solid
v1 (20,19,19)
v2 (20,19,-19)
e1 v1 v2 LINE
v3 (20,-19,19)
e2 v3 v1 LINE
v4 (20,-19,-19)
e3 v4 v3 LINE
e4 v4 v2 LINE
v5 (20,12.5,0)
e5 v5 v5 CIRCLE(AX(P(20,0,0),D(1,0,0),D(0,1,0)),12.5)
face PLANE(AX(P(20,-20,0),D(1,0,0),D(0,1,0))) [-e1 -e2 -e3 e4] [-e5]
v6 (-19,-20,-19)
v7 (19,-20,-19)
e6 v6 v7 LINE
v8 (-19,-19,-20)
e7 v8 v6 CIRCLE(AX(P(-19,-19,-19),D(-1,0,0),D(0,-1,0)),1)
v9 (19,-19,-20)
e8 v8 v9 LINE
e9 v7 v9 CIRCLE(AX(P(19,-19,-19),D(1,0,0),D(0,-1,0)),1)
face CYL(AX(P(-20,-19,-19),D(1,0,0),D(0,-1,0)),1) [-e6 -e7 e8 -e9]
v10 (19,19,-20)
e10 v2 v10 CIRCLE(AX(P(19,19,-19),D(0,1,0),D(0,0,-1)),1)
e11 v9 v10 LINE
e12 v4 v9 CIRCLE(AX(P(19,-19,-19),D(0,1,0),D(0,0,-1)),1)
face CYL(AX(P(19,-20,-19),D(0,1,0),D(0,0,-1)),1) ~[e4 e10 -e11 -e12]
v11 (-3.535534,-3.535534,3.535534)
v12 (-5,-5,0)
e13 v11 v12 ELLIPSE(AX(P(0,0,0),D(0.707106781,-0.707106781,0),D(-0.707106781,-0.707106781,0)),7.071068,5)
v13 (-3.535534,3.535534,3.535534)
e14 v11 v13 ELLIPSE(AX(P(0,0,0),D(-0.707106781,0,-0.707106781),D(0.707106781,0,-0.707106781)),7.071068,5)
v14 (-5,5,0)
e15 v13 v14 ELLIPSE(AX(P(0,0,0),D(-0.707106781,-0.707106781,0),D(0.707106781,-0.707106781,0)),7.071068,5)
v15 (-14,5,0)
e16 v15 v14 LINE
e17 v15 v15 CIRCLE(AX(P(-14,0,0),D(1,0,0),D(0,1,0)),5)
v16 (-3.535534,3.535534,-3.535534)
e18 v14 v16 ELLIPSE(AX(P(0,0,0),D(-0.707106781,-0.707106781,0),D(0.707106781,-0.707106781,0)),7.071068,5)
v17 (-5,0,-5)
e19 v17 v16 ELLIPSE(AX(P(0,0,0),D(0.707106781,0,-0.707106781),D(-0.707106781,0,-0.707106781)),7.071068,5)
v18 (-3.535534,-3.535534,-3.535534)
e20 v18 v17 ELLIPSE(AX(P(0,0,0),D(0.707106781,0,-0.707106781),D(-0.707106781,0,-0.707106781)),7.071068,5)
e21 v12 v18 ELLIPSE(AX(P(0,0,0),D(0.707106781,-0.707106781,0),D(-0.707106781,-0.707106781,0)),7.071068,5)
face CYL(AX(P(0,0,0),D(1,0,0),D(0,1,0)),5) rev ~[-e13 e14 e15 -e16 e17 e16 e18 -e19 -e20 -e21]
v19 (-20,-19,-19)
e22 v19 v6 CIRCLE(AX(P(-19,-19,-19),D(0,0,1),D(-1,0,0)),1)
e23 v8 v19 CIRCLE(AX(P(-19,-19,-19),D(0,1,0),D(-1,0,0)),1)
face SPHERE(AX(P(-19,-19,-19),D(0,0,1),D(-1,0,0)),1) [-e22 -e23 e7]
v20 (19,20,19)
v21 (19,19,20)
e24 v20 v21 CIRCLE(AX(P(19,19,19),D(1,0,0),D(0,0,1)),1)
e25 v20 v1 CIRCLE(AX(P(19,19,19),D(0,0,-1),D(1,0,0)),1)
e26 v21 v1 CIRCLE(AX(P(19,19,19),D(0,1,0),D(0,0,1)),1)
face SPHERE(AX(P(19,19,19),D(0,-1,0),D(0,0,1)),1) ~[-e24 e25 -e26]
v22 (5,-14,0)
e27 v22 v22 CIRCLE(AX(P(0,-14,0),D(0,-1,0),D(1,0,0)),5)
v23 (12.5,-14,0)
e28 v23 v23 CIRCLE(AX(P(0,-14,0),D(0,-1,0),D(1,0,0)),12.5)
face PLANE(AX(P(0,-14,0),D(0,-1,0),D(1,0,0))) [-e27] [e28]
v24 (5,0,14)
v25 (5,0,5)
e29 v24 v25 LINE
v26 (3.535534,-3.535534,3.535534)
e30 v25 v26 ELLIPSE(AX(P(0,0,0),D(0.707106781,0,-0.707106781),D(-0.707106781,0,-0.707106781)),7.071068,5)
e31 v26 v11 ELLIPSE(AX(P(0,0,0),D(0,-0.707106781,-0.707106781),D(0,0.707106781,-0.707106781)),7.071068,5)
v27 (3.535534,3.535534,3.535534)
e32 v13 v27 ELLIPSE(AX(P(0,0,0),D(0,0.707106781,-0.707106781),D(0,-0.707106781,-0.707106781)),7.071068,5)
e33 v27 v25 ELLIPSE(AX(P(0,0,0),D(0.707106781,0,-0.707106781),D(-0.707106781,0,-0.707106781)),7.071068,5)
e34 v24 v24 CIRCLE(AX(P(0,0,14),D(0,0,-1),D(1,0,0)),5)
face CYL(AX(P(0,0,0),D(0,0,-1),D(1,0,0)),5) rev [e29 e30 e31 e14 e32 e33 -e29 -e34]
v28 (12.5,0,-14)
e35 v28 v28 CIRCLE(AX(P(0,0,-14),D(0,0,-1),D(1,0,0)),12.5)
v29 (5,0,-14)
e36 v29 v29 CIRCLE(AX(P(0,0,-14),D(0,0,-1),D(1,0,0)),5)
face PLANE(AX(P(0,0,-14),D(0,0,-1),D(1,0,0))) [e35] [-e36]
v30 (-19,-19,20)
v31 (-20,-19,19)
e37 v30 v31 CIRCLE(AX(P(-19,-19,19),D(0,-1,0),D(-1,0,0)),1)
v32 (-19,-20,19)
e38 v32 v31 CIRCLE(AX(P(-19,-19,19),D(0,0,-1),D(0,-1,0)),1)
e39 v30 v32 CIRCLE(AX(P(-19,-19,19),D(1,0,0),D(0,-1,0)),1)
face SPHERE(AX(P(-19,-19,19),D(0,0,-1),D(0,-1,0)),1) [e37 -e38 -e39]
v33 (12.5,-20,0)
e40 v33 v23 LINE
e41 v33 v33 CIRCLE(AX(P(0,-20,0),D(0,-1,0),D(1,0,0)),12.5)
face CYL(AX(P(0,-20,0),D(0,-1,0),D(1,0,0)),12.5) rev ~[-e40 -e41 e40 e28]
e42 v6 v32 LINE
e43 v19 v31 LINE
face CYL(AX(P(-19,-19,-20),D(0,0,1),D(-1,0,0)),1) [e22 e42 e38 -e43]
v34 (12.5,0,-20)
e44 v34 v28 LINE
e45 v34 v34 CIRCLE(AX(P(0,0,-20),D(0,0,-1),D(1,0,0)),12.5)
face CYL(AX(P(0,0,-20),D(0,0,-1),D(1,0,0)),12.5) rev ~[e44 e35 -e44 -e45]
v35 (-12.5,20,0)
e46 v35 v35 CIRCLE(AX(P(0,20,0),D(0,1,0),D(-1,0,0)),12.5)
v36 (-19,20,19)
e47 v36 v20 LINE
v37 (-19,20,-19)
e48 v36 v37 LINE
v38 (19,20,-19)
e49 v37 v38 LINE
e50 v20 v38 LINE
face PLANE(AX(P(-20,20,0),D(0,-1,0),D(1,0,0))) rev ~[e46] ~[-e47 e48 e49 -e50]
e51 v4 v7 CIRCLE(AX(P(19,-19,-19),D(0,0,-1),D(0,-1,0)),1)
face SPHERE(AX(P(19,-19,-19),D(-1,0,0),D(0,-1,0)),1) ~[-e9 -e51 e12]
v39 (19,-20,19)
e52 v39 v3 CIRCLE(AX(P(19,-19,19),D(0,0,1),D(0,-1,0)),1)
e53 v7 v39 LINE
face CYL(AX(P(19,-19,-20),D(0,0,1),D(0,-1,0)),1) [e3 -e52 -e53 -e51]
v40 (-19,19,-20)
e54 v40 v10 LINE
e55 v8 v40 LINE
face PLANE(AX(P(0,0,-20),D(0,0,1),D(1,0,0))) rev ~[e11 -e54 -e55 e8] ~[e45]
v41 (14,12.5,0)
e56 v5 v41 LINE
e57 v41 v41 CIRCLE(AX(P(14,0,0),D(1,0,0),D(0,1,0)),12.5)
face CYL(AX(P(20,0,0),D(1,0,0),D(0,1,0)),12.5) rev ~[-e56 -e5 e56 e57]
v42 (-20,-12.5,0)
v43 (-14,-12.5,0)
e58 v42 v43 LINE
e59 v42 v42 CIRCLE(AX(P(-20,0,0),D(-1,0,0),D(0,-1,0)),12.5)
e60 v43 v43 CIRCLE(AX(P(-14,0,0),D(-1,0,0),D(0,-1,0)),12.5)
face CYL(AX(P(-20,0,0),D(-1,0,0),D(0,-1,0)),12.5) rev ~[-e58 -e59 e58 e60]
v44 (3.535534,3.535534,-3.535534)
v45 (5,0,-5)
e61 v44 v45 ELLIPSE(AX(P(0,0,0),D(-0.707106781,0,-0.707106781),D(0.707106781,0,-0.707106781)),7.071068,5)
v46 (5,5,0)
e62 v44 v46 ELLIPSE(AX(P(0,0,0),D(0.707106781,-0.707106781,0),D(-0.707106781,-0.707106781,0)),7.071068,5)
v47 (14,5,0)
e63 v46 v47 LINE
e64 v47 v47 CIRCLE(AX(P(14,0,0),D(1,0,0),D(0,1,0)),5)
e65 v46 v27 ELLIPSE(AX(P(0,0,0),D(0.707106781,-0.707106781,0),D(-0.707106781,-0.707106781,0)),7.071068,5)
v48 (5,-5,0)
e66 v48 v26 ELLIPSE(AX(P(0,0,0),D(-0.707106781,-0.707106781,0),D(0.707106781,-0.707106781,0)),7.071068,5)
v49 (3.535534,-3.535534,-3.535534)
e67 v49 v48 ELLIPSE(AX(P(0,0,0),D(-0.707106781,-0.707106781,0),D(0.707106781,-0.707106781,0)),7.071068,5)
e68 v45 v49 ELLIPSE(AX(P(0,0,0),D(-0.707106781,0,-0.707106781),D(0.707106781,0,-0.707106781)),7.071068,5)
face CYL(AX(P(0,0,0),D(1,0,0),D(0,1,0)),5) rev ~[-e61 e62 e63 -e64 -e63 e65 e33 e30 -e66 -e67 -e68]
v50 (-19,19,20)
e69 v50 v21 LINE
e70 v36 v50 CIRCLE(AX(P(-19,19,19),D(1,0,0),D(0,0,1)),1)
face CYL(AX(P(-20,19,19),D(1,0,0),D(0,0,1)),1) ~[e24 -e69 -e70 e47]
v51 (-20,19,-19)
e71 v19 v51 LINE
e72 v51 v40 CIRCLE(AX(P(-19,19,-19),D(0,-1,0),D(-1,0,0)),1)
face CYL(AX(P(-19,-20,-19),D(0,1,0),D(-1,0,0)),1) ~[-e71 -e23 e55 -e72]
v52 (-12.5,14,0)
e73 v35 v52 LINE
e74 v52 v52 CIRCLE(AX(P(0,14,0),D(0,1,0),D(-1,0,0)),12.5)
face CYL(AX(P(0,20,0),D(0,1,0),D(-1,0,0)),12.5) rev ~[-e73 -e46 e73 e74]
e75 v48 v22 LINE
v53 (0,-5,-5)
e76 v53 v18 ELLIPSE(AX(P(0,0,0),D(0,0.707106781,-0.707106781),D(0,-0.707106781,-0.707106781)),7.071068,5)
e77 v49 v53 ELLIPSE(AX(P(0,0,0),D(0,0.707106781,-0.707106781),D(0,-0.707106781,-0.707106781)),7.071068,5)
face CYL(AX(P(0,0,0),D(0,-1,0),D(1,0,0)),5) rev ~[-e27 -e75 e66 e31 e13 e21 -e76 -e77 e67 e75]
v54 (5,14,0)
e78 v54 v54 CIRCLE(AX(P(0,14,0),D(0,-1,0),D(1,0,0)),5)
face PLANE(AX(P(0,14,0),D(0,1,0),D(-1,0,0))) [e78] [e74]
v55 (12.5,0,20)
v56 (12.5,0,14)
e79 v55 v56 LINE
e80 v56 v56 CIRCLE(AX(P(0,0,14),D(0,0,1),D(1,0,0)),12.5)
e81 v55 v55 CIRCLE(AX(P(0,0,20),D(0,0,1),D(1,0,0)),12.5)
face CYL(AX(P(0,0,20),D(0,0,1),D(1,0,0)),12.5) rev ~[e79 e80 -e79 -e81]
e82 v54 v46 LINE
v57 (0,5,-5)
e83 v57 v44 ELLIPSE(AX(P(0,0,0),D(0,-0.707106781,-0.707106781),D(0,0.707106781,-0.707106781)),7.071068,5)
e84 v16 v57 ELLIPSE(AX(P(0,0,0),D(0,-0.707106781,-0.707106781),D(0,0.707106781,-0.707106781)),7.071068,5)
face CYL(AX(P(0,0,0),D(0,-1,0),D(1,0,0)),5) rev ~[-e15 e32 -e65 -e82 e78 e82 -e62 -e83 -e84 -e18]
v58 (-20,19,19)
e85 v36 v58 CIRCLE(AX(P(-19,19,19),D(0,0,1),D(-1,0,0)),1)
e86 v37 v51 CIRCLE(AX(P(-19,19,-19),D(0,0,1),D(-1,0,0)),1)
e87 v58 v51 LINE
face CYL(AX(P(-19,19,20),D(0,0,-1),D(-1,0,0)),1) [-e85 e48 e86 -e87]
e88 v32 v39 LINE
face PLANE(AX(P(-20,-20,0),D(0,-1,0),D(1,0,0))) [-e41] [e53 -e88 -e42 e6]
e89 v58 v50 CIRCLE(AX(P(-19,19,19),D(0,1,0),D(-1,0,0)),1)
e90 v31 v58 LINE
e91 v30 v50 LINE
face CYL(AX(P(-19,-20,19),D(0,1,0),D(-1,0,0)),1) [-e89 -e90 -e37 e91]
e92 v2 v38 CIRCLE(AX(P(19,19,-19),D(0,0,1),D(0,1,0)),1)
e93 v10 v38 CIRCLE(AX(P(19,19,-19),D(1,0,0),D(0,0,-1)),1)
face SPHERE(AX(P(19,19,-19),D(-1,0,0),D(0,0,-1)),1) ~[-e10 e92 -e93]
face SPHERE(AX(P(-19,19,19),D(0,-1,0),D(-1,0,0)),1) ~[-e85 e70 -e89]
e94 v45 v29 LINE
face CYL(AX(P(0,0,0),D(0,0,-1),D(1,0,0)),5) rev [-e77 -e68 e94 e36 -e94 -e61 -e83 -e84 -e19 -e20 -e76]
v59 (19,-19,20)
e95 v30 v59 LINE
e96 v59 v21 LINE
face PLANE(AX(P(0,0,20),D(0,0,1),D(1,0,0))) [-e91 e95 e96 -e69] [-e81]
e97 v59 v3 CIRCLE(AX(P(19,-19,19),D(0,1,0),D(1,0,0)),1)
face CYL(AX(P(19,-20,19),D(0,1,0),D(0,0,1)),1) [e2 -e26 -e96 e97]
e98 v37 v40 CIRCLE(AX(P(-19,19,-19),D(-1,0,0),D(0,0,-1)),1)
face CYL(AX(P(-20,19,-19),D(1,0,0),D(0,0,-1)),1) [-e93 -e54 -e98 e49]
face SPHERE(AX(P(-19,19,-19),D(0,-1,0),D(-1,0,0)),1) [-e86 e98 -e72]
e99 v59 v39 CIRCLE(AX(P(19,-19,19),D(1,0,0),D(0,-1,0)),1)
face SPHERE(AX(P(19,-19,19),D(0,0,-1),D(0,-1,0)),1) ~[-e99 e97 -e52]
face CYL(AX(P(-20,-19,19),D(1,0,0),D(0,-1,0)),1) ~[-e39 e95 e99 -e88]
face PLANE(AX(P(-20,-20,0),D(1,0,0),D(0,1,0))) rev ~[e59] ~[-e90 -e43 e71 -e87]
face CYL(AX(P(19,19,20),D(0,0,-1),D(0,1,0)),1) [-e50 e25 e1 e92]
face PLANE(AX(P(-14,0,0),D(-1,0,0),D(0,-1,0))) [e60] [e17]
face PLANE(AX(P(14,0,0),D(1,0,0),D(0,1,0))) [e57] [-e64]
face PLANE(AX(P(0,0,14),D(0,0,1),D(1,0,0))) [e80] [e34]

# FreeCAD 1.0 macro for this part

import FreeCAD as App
import Part
import Sketcher

V = App.Vector
Q = App.Units.Quantity


def edges_at(feature, points):
    """Names of the edges that pass closest to the given points."""
    edges = feature.Shape.Edges
    near = lambda p: min(range(len(edges)), key=lambda i: edges[i].distToShape(Part.Vertex(*p))[0])
    return sorted({f"Edge{near(p) + 1}" for p in points})

doc = App.newDocument("Part")
body = doc.addObject("PartDesign::Body", "Body")

# Sketch on XY plane
sketch1 = body.newObject("Sketcher::SketchObject", "Sketch")
sketch1.AttachmentSupport = (doc.getObject("XY_Plane"), [""])
sketch1.MapMode = "FlatFace"
sketch1.addGeometry([
    Part.LineSegment(V(-20, 20, 0), V(-20, -20, 0)),  # 0
    Part.LineSegment(V(-20, -20, 0), V(20, -20, 0)),  # 1
    Part.LineSegment(V(20, -20, 0), V(20, 20, 0)),  # 2
    Part.LineSegment(V(20, 20, 0), V(-20, 20, 0)),  # 3
    Part.Circle(V(0, 0, 0), V(0, 0, 1), 5),  # 4
], False)
sketch1.addConstraint([
    Sketcher.Constraint("Coincident", 0, 2, 1, 1),
    Sketcher.Constraint("Coincident", 1, 2, 2, 1),
    Sketcher.Constraint("Coincident", 2, 2, 3, 1),
    Sketcher.Constraint("Coincident", 3, 2, 0, 1),
    Sketcher.Constraint("Vertical", 0),
    Sketcher.Constraint("Horizontal", 1),
    Sketcher.Constraint("Vertical", 2),
    Sketcher.Constraint("Horizontal", 3),
    Sketcher.Constraint("Coincident", 4, 3, -1, 1),
    Sketcher.Constraint("Symmetric", 0, 2, 2, 2, -1, 1),
    Sketcher.Constraint("Equal", 3, 0),
    Sketcher.Constraint("Diameter", 4, Q("10 mm")),
    Sketcher.Constraint("DistanceX", 1, 1, 1, 2, Q("40 mm")),
])
pad1 = body.newObject("PartDesign::Pad", "Pad")
pad1.Profile = sketch1
pad1.Length = 40
pad1.Midplane = True

# Sketch on XZ plane
sketch2 = body.newObject("Sketcher::SketchObject", "Sketch001")
sketch2.AttachmentSupport = (doc.getObject("XZ_Plane"), [""])
sketch2.MapMode = "FlatFace"
sketch2.AttachmentOffset = App.Placement(V(0, 0, 20), App.Rotation())
sketch2.addGeometry(Part.Circle(V(0, 0, 0), V(0, 0, 1), 12.5), False)
sketch2.addConstraint([
    Sketcher.Constraint("Coincident", 0, 3, -1, 1),
    Sketcher.Constraint("Diameter", 0, Q("25 mm")),
])
pocket1 = body.newObject("PartDesign::Pocket", "Pocket")
pocket1.Profile = sketch2
pocket1.Length = 6

# Sketch on XY plane
sketch3 = body.newObject("Sketcher::SketchObject", "Sketch002")
sketch3.AttachmentSupport = (doc.getObject("XY_Plane"), [""])
sketch3.MapMode = "FlatFace"
sketch3.AttachmentOffset = App.Placement(V(0, 0, 20), App.Rotation())
sketch3.addGeometry(Part.Circle(V(0, 0, 0), V(0, 0, 1), 12.5), False)
sketch3.addConstraint([
    Sketcher.Constraint("Coincident", 0, 3, -1, 1),
    Sketcher.Constraint("Diameter", 0, Q("25 mm")),
])
pocket2 = body.newObject("PartDesign::Pocket", "Pocket001")
pocket2.Profile = sketch3
pocket2.Length = 6

# Sketch on YZ plane
sketch4 = body.newObject("Sketcher::SketchObject", "Sketch003")
sketch4.AttachmentSupport = (doc.getObject("YZ_Plane"), [""])
sketch4.MapMode = "FlatFace"
sketch4.AttachmentOffset = App.Placement(V(0, 0, -20), App.Rotation())
sketch4.addGeometry(Part.Circle(V(0, 0, 0), V(0, 0, 1), 12.5), False)
sketch4.addConstraint([
    Sketcher.Constraint("Coincident", 0, 3, -1, 1),
    Sketcher.Constraint("Diameter", 0, Q("25 mm")),
])
pocket3 = body.newObject("PartDesign::Pocket", "Pocket002")
pocket3.Profile = sketch4
pocket3.Length = 6
pocket3.Reversed = True

# Sketch on XZ plane
sketch5 = body.newObject("Sketcher::SketchObject", "Sketch004")
sketch5.AttachmentSupport = (doc.getObject("XZ_Plane"), [""])
sketch5.MapMode = "FlatFace"
sketch5.addGeometry(Part.Circle(V(0, 0, 0), V(0, 0, 1), 5), False)
sketch5.addConstraint([
    Sketcher.Constraint("Coincident", 0, 3, -1, 1),
    Sketcher.Constraint("Diameter", 0, Q("10 mm")),
])
pocket4 = body.newObject("PartDesign::Pocket", "Pocket003")
pocket4.Profile = sketch5
pocket4.Length = 40
pocket4.Midplane = True

# Sketch on YZ plane
sketch6 = body.newObject("Sketcher::SketchObject", "Sketch005")
sketch6.AttachmentSupport = (doc.getObject("YZ_Plane"), [""])
sketch6.MapMode = "FlatFace"
sketch6.addGeometry(Part.Circle(V(0, 0, 0), V(0, 0, 1), 5), False)
sketch6.addConstraint([
    Sketcher.Constraint("Coincident", 0, 3, -1, 1),
    Sketcher.Constraint("Diameter", 0, Q("10 mm")),
])
pocket5 = body.newObject("PartDesign::Pocket", "Pocket004")
pocket5.Profile = sketch6
pocket5.Length = 40
pocket5.Midplane = True

# Sketch on XY plane
sketch7 = body.newObject("Sketcher::SketchObject", "Sketch006")
sketch7.AttachmentSupport = (doc.getObject("XY_Plane"), [""])
sketch7.MapMode = "FlatFace"
sketch7.AttachmentOffset = App.Placement(V(0, 0, -20), App.Rotation())
sketch7.addGeometry(Part.Circle(V(0, 0, 0), V(0, 0, 1), 12.5), False)
sketch7.addConstraint([
    Sketcher.Constraint("Coincident", 0, 3, -1, 1),
    Sketcher.Constraint("Diameter", 0, Q("25 mm")),
])
pocket6 = body.newObject("PartDesign::Pocket", "Pocket005")
pocket6.Profile = sketch7
pocket6.Length = 6
pocket6.Reversed = True

# Sketch on YZ plane
sketch8 = body.newObject("Sketcher::SketchObject", "Sketch007")
sketch8.AttachmentSupport = (doc.getObject("YZ_Plane"), [""])
sketch8.MapMode = "FlatFace"
sketch8.AttachmentOffset = App.Placement(V(0, 0, 20), App.Rotation())
sketch8.addGeometry(Part.Circle(V(0, 0, 0), V(0, 0, 1), 12.5), False)
sketch8.addConstraint([
    Sketcher.Constraint("Coincident", 0, 3, -1, 1),
    Sketcher.Constraint("Diameter", 0, Q("25 mm")),
])
pocket7 = body.newObject("PartDesign::Pocket", "Pocket006")
pocket7.Profile = sketch8
pocket7.Length = 6

# Sketch on XZ plane
sketch9 = body.newObject("Sketcher::SketchObject", "Sketch008")
sketch9.AttachmentSupport = (doc.getObject("XZ_Plane"), [""])
sketch9.MapMode = "FlatFace"
sketch9.AttachmentOffset = App.Placement(V(0, 0, -20), App.Rotation())
sketch9.addGeometry(Part.Circle(V(0, 0, 0), V(0, 0, 1), 12.5), False)
sketch9.addConstraint([
    Sketcher.Constraint("Coincident", 0, 3, -1, 1),
    Sketcher.Constraint("Diameter", 0, Q("25 mm")),
])
pocket8 = body.newObject("PartDesign::Pocket", "Pocket007")
pocket8.Profile = sketch9
pocket8.Length = 6
pocket8.Reversed = True
doc.recompute()

fillet = body.newObject("PartDesign::Fillet", "Fillet")
fillet.Base = (pocket8, edges_at(pocket8, [
    (-20, -20, 0),
    (-20, 0, -20),
    (0, -20, -20),
    (20, -20, 0),
    (0, -20, 20),
    (-20, 0, 20),
    (-20, 20, 0),
    (0, 20, -20),
    (20, 0, -20),
    (20, 0, 20),
    (0, 20, 20),
    (20, 20, 0),
]))
fillet.Radius = 1

doc.recompute()
